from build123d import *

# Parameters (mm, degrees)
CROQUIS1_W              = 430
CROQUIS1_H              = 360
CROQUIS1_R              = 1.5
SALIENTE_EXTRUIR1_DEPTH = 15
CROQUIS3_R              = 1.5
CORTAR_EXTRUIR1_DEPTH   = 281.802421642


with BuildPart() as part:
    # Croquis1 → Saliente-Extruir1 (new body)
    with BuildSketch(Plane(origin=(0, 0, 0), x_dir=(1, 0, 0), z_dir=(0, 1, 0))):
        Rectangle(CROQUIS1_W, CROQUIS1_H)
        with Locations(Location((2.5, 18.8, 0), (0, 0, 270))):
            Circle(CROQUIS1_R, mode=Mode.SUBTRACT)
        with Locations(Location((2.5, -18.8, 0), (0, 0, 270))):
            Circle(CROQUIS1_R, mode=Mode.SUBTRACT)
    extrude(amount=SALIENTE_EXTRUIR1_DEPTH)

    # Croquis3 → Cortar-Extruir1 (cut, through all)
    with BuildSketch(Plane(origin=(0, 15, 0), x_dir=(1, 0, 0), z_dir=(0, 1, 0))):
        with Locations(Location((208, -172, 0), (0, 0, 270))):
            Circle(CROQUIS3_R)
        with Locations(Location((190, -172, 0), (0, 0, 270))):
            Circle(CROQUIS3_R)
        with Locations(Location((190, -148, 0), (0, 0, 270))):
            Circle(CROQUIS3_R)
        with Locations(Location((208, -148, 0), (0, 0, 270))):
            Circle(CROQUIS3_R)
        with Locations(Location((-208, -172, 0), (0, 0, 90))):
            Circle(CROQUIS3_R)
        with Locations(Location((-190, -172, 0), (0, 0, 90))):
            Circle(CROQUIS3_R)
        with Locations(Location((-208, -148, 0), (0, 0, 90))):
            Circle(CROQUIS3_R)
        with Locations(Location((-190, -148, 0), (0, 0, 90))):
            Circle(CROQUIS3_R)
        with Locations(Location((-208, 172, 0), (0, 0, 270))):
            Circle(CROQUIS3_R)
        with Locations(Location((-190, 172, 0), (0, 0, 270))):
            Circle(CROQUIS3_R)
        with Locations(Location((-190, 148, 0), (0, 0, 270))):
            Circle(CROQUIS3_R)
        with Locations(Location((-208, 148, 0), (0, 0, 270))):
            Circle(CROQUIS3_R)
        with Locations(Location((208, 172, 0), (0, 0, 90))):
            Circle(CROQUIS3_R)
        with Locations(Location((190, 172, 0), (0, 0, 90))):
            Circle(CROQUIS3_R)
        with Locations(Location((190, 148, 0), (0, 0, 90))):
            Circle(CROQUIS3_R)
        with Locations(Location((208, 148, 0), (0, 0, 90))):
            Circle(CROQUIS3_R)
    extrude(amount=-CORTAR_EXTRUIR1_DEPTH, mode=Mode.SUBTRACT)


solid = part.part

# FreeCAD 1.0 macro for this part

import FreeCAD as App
import Part
import Sketcher

doc = App.newDocument("Part")
params = doc.addObject("Spreadsheet::Sheet", "Params")
for row, (alias, value) in enumerate([
    ("sketch1_diameter", "3 mm"),
    ("sketch1_width", "430 mm"),
    ("sketch1_height", "360 mm"),
    ("pad1_length", "15 mm"),
    ("sketch2_diameter", "3 mm"),
], start=1):
    params.set(f"A{row}", alias)
    params.set(f"B{row}", "=" + value)
    params.setAlias(f"B{row}", alias)

body = doc.addObject("PartDesign::Body", "Body")

sketch1 = body.newObject("Sketcher::SketchObject", "Sketch")
sketch1.AttachmentSupport = (doc.getObject("XZ_Plane"), [""])
sketch1.MapMode = "FlatFace"
sketch1.addGeometry(Part.LineSegment(App.Vector(-215, -180, 0), App.Vector(-215, 180, 0)), False)
sketch1.addGeometry(Part.LineSegment(App.Vector(-215, 180, 0), App.Vector(215, 180, 0)), False)
sketch1.addGeometry(Part.LineSegment(App.Vector(215, 180, 0), App.Vector(215, -180, 0)), False)
sketch1.addGeometry(Part.LineSegment(App.Vector(215, -180, 0), App.Vector(-215, -180, 0)), False)
sketch1.addGeometry(Part.Circle(App.Vector(2.5, 18.8, 0), App.Vector(0, 0, 1), 1.5), False)
sketch1.addGeometry(Part.Circle(App.Vector(2.5, -18.8, 0), App.Vector(0, 0, 1), 1.5), False)
sketch1.addConstraint(Sketcher.Constraint("Coincident", 0, 2, 1, 1))
sketch1.addConstraint(Sketcher.Constraint("Coincident", 1, 2, 2, 1))
sketch1.addConstraint(Sketcher.Constraint("Coincident", 2, 2, 3, 1))
sketch1.addConstraint(Sketcher.Constraint("Coincident", 3, 2, 0, 1))
sketch1.addConstraint(Sketcher.Constraint("Vertical", 0))
sketch1.addConstraint(Sketcher.Constraint("Horizontal", 1))
sketch1.addConstraint(Sketcher.Constraint("Vertical", 2))
sketch1.addConstraint(Sketcher.Constraint("Horizontal", 3))
sketch1.addConstraint(Sketcher.Constraint("Equal", 4, 5))
sketch1.addConstraint(Sketcher.Constraint("Symmetric", 0, 2, 2, 2, -1, 1))
sketch1.addConstraint(Sketcher.Constraint("Symmetric", 4, 3, 5, 3, -1))
sketch1.addConstraint(Sketcher.Constraint("Diameter", 4, 3.0))
sketch1.addConstraint(Sketcher.Constraint("DistanceX", 1, 1, 1, 2, 430.0))
sketch1.addConstraint(Sketcher.Constraint("DistanceY", 0, 1, 0, 2, 360.0))
sketch1.addConstraint(Sketcher.Constraint("DistanceX", -1, 1, 4, 3, 2.5))
sketch1.addConstraint(Sketcher.Constraint("DistanceY", -1, 1, 4, 3, 18.8))
sketch1.setExpression("Constraints[11]", "Params.sketch1_diameter")
sketch1.setExpression("Constraints[12]", "Params.sketch1_width")
sketch1.setExpression("Constraints[13]", "Params.sketch1_height")
pad1 = body.newObject("PartDesign::Pad", "Pad")
pad1.Profile = sketch1
pad1.setExpression("Length", "Params.pad1_length")
pad1.Reversed = True

sketch2 = body.newObject("Sketcher::SketchObject", "Sketch001")
sketch2.AttachmentSupport = (doc.getObject("XZ_Plane"), [""])
sketch2.MapMode = "FlatFace"
sketch2.AttachmentOffset = App.Placement(App.Vector(0, 0, -15), App.Rotation())
sketch2.addGeometry(Part.Circle(App.Vector(208, 172, 0), App.Vector(0, 0, 1), 1.5), False)
sketch2.addGeometry(Part.Circle(App.Vector(190, 172, 0), App.Vector(0, 0, 1), 1.5), False)
sketch2.addGeometry(Part.Circle(App.Vector(190, 148, 0), App.Vector(0, 0, 1), 1.5), False)
sketch2.addGeometry(Part.Circle(App.Vector(208, 148, 0), App.Vector(0, 0, 1), 1.5), False)
sketch2.addGeometry(Part.Circle(App.Vector(-208, 172, 0), App.Vector(0, 0, 1), 1.5), False)
sketch2.addGeometry(Part.Circle(App.Vector(-190, 172, 0), App.Vector(0, 0, 1), 1.5), False)
sketch2.addGeometry(Part.Circle(App.Vector(-208, 148, 0), App.Vector(0, 0, 1), 1.5), False)
sketch2.addGeometry(Part.Circle(App.Vector(-190, 148, 0), App.Vector(0, 0, 1), 1.5), False)
sketch2.addGeometry(Part.Circle(App.Vector(-208, -172, 0), App.Vector(0, 0, 1), 1.5), False)
sketch2.addGeometry(Part.Circle(App.Vector(-190, -172, 0), App.Vector(0, 0, 1), 1.5), False)
sketch2.addGeometry(Part.Circle(App.Vector(-190, -148, 0), App.Vector(0, 0, 1), 1.5), False)
sketch2.addGeometry(Part.Circle(App.Vector(-208, -148, 0), App.Vector(0, 0, 1), 1.5), False)
sketch2.addGeometry(Part.Circle(App.Vector(208, -172, 0), App.Vector(0, 0, 1), 1.5), False)
sketch2.addGeometry(Part.Circle(App.Vector(190, -172, 0), App.Vector(0, 0, 1), 1.5), False)
sketch2.addGeometry(Part.Circle(App.Vector(190, -148, 0), App.Vector(0, 0, 1), 1.5), False)
sketch2.addGeometry(Part.Circle(App.Vector(208, -148, 0), App.Vector(0, 0, 1), 1.5), False)
sketch2.addConstraint(Sketcher.Constraint("Equal", 0, 1))
sketch2.addConstraint(Sketcher.Constraint("Equal", 1, 2))
sketch2.addConstraint(Sketcher.Constraint("Equal", 2, 3))
sketch2.addConstraint(Sketcher.Constraint("Equal", 3, 4))
sketch2.addConstraint(Sketcher.Constraint("Equal", 4, 5))
sketch2.addConstraint(Sketcher.Constraint("Equal", 5, 6))
sketch2.addConstraint(Sketcher.Constraint("Equal", 6, 7))
sketch2.addConstraint(Sketcher.Constraint("Equal", 7, 8))
sketch2.addConstraint(Sketcher.Constraint("Equal", 8, 9))
sketch2.addConstraint(Sketcher.Constraint("Equal", 9, 10))
sketch2.addConstraint(Sketcher.Constraint("Equal", 10, 11))
sketch2.addConstraint(Sketcher.Constraint("Equal", 11, 12))
sketch2.addConstraint(Sketcher.Constraint("Equal", 12, 13))
sketch2.addConstraint(Sketcher.Constraint("Equal", 13, 14))
sketch2.addConstraint(Sketcher.Constraint("Equal", 14, 15))
sketch2.addConstraint(Sketcher.Constraint("Symmetric", 0, 3, 8, 3, -1, 1))
sketch2.addConstraint(Sketcher.Constraint("Symmetric", 1, 3, 9, 3, -1, 1))
sketch2.addConstraint(Sketcher.Constraint("Symmetric", 2, 3, 10, 3, -1, 1))
sketch2.addConstraint(Sketcher.Constraint("Symmetric", 3, 3, 11, 3, -1, 1))
sketch2.addConstraint(Sketcher.Constraint("Symmetric", 4, 3, 12, 3, -1, 1))
sketch2.addConstraint(Sketcher.Constraint("Symmetric", 5, 3, 13, 3, -1, 1))
sketch2.addConstraint(Sketcher.Constraint("Symmetric", 7, 3, 14, 3, -1, 1))
sketch2.addConstraint(Sketcher.Constraint("Symmetric", 6, 3, 15, 3, -1, 1))
sketch2.addConstraint(Sketcher.Constraint("Symmetric", 0, 3, 4, 3, -2))
sketch2.addConstraint(Sketcher.Constraint("Symmetric", 1, 3, 5, 3, -2))
sketch2.addConstraint(Sketcher.Constraint("Symmetric", 3, 3, 6, 3, -2))
sketch2.addConstraint(Sketcher.Constraint("Symmetric", 2, 3, 7, 3, -2))
sketch2.addConstraint(Sketcher.Constraint("Horizontal", 0, 3, 1, 3))
sketch2.addConstraint(Sketcher.Constraint("Horizontal", 2, 3, 3, 3))
sketch2.addConstraint(Sketcher.Constraint("Vertical", 1, 3, 2, 3))
sketch2.addConstraint(Sketcher.Constraint("Vertical", 0, 3, 3, 3))
sketch2.addConstraint(Sketcher.Constraint("Diameter", 0, 3.0))
sketch2.addConstraint(Sketcher.Constraint("DistanceX", -1, 1, 0, 3, 208.0))
sketch2.addConstraint(Sketcher.Constraint("DistanceY", -1, 1, 0, 3, 172.0))
sketch2.addConstraint(Sketcher.Constraint("DistanceX", -1, 1, 1, 3, 190.0))
sketch2.addConstraint(Sketcher.Constraint("DistanceY", -1, 1, 2, 3, 148.0))
sketch2.setExpression("Constraints[31]", "Params.sketch2_diameter")
pocket1 = body.newObject("PartDesign::Pocket", "Pocket")
pocket1.Profile = sketch2
pocket1.Type = "ThroughAll"
pocket1.Reversed = True

doc.recompute()
